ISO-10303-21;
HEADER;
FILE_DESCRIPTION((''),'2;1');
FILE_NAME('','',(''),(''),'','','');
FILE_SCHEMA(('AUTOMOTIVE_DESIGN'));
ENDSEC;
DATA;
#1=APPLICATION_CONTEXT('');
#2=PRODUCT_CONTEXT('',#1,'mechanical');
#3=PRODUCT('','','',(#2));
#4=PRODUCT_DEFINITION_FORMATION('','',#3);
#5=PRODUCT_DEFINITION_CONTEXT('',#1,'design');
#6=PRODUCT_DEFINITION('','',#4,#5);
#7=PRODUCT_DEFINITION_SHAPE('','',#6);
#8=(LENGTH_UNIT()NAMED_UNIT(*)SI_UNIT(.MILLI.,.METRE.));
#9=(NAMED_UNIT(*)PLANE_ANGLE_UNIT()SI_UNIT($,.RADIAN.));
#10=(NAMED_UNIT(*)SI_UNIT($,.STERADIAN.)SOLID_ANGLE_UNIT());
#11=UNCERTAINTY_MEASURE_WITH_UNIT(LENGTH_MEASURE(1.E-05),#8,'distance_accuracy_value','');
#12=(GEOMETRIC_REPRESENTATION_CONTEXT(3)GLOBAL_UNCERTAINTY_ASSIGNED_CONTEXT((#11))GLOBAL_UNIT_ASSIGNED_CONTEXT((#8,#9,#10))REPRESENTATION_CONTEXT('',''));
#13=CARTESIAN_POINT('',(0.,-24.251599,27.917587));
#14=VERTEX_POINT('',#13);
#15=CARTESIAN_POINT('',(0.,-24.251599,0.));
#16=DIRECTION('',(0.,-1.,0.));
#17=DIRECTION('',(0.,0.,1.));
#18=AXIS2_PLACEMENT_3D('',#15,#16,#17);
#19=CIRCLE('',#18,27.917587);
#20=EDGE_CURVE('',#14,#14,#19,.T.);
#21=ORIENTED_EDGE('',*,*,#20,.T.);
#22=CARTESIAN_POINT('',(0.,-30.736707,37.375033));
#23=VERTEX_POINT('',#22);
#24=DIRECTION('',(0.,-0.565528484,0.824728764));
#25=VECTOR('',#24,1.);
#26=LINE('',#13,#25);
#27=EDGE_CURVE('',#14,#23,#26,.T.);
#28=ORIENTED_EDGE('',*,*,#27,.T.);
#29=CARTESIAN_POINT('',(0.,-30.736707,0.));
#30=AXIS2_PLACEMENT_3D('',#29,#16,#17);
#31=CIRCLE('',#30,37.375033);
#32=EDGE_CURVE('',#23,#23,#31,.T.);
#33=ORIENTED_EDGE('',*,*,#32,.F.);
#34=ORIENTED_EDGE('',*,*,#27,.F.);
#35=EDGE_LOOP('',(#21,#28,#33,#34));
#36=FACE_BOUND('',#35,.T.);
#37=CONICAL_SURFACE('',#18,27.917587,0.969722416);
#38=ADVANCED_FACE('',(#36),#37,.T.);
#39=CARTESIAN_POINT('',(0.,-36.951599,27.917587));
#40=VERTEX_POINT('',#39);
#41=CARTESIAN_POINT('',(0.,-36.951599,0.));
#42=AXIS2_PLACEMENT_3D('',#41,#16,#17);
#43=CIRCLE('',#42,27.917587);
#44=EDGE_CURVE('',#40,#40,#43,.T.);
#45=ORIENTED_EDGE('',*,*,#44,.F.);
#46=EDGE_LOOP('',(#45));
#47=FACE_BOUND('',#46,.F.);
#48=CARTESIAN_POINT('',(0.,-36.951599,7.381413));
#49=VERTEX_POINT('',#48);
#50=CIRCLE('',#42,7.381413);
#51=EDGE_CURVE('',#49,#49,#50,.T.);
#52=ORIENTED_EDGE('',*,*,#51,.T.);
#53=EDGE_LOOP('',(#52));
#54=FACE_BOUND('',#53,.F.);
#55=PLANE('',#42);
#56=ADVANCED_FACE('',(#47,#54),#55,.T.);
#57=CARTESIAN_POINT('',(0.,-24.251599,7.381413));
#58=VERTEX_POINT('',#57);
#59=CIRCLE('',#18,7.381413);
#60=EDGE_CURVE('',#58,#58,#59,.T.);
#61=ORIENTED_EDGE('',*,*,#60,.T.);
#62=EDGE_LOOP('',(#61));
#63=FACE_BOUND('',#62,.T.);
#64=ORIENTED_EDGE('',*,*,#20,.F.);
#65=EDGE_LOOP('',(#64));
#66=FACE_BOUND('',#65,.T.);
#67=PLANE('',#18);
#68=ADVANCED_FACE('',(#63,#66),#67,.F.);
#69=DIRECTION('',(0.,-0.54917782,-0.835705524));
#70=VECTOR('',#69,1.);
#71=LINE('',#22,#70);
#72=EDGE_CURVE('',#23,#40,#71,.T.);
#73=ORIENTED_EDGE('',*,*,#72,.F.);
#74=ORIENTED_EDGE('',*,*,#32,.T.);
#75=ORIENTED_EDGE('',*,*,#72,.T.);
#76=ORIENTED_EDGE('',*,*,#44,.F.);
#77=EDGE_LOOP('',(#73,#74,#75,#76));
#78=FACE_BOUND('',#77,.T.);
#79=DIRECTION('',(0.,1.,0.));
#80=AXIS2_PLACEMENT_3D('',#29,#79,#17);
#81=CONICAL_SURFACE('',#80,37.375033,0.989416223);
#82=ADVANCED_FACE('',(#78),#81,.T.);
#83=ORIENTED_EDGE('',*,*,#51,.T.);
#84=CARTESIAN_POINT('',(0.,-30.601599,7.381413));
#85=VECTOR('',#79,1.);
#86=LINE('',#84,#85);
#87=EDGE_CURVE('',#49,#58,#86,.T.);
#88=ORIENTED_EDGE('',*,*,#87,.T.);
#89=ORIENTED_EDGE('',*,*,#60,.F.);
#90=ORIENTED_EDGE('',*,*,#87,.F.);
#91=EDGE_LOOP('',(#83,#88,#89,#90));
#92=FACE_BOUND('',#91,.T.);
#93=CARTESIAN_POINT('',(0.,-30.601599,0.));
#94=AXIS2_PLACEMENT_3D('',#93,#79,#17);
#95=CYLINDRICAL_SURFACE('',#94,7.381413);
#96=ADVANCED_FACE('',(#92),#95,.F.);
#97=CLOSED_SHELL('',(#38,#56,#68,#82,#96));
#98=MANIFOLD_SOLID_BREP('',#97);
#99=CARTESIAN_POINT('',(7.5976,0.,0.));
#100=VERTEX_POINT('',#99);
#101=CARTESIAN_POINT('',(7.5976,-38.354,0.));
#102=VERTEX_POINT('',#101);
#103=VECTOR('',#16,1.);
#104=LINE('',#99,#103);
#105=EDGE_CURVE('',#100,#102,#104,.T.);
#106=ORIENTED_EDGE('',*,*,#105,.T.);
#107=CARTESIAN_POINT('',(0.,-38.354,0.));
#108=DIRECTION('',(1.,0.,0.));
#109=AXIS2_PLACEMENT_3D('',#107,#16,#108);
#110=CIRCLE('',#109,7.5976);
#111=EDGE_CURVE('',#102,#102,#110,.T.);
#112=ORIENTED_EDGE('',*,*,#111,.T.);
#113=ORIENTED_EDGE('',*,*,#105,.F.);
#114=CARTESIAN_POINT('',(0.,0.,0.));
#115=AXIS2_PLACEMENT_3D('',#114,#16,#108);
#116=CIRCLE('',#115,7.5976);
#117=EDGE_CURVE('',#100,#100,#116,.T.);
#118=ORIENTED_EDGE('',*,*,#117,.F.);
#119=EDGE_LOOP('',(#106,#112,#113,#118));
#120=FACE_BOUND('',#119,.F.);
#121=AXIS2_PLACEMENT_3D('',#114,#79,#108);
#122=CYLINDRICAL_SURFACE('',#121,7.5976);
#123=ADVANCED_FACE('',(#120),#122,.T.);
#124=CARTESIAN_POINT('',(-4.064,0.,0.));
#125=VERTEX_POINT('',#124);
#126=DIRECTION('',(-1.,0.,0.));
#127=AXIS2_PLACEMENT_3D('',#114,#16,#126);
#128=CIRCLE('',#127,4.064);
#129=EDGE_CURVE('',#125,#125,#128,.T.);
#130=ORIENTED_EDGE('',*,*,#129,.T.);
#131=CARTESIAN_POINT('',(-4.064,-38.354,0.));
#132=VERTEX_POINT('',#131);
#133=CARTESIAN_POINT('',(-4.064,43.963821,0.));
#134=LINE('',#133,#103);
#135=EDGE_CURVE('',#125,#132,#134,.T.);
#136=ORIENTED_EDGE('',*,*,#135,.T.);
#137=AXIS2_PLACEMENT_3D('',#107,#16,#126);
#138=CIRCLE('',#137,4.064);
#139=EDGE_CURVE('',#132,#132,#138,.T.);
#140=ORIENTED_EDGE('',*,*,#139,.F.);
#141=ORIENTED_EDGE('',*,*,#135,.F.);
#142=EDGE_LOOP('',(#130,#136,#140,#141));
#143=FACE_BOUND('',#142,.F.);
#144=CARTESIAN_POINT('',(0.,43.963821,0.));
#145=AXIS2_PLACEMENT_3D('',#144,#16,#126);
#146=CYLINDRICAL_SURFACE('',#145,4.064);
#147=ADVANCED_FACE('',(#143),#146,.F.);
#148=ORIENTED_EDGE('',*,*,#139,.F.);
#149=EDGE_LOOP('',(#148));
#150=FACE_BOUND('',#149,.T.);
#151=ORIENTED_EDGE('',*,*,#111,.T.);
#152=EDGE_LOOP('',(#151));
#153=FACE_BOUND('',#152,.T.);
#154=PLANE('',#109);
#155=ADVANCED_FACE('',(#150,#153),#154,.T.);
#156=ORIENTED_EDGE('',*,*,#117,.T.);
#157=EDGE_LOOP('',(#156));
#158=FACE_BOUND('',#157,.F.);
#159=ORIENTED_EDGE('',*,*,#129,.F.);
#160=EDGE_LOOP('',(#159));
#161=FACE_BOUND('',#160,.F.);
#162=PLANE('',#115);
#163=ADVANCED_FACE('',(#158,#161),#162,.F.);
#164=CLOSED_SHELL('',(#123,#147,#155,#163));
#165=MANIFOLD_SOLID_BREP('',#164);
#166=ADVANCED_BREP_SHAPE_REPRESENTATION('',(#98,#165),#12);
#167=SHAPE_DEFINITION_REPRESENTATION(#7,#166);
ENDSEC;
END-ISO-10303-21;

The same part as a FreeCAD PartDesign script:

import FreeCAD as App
import Part
import Sketcher
Q = App.Units.Quantity

doc = App.newDocument("Part")
body = doc.addObject("PartDesign::Body", "Body")

# Sketch on YZ plane
sketch1 = body.newObject("Sketcher::SketchObject", "Sketch")
sketch1.AttachmentSupport = (doc.getObject("YZ_Plane"), [""])
sketch1.MapMode = "FlatFace"
sketch1.addGeometry([
    Part.LineSegment(App.Vector(-24.251599, 27.917587, 0), App.Vector(-30.736707, 37.375033, 0)),  # 0
    Part.LineSegment(App.Vector(-30.736707, 37.375033, 0), App.Vector(-36.951599, 27.917587, 0)),  # 1
    Part.LineSegment(App.Vector(-36.951599, 27.917587, 0), App.Vector(-36.951599, 7.381413, 0)),  # 2
    Part.LineSegment(App.Vector(-36.951599, 7.381413, 0), App.Vector(-24.251599, 7.381413, 0)),  # 3
    Part.LineSegment(App.Vector(-24.251599, 7.381413, 0), App.Vector(-24.251599, 27.917587, 0)),  # 4
], False)
sketch1.addConstraint([
    Sketcher.Constraint("Coincident", 0, 2, 1, 1),
    Sketcher.Constraint("Coincident", 1, 2, 2, 1),
    Sketcher.Constraint("Coincident", 2, 2, 3, 1),
    Sketcher.Constraint("Coincident", 3, 2, 4, 1),
    Sketcher.Constraint("Coincident", 4, 2, 0, 1),
    Sketcher.Constraint("Vertical", 2),
    Sketcher.Constraint("Horizontal", 3),
    Sketcher.Constraint("Vertical", 4),
    Sketcher.Constraint("Horizontal", 1, 2, 4, 2),
    Sketcher.Constraint("DistanceX", 3, 1, 3, 2, Q("0.5 in")),
    Sketcher.Constraint("DistanceX", 1, 2, -1, 1, 36.951599),
    Sketcher.Constraint("Distance", 0, 11.467341),
    Sketcher.Constraint("Distance", 1, 11.316721),
    Sketcher.Constraint("DistanceY", 2, 2, 2, 1, 20.536174),
    Sketcher.Constraint("DistanceY", -1, 1, 0, 2, 37.375033),
])
revolution = body.newObject("PartDesign::Revolution", "Revolution")
revolution.Profile = sketch1
revolution.ReferenceAxis = (sketch1, ["H_Axis"])
revolution.Angle = 360
body2 = doc.addObject("PartDesign::Body", "Body001")

# Sketch on XZ plane
sketch2 = body2.newObject("Sketcher::SketchObject", "Sketch001")
sketch2.AttachmentSupport = (doc.getObject("XZ_Plane001"), [""])
sketch2.MapMode = "FlatFace"
sketch2.addGeometry(Part.Circle(App.Vector(0, 0, 0), App.Vector(0, 0, 1), 7.5976), False)
sketch2.addConstraint([
    Sketcher.Constraint("Coincident", 0, 3, -1, 1),
    Sketcher.Constraint("Diameter", 0, 15.1952),
])
pad1 = body2.newObject("PartDesign::Pad", "Pad")
pad1.Profile = sketch2
pad1.Length = Q("1.51 in")

# Sketch on XZ plane
sketch3 = body2.newObject("Sketcher::SketchObject", "Sketch002")
sketch3.AttachmentSupport = (doc.getObject("XZ_Plane001"), [""])
sketch3.MapMode = "FlatFace"
sketch3.addGeometry(Part.Circle(App.Vector(0, 0, 0), App.Vector(0, 0, 1), 4.064), False)
sketch3.addConstraint([
    Sketcher.Constraint("Coincident", 0, 3, -1, 1),
    Sketcher.Constraint("Diameter", 0, Q("0.32 in")),
])
doc.recompute()
hole = body2.newObject("PartDesign::Hole", "Hole")
hole.Profile = sketch3
hole.ThreadType = "None"
hole.Diameter = Q("0.32 in")
hole.DepthType = "ThroughAll"
hole.Reversed = True

doc.recompute()
